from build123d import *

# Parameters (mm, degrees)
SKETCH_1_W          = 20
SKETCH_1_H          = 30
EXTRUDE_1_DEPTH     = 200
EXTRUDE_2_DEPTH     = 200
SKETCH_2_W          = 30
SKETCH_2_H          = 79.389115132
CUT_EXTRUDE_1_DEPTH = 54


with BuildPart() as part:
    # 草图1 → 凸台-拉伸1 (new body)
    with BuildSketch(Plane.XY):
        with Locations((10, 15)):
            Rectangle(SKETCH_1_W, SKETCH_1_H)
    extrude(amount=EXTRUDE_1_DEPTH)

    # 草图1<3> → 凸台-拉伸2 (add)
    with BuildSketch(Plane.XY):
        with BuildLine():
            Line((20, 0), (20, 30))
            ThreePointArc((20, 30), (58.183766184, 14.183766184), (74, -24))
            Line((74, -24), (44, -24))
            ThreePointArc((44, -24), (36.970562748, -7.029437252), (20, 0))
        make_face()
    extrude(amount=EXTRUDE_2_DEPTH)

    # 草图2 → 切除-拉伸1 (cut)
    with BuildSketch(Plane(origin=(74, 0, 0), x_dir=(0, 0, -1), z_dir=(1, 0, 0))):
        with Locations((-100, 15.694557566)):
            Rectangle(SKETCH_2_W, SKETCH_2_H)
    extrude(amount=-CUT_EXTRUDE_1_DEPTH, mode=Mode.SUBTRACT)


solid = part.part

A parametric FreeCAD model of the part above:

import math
import FreeCAD as App
import Part
import Sketcher
from FreeCAD import Vector
Q = App.Units.Quantity

doc = App.newDocument("Part")
body = doc.addObject("PartDesign::Body", "Body")

sketch1 = doc.addObject("Sketcher::SketchObject", "Sketch")
body.addObject(sketch1)
sketch1.AttachmentSupport = (doc.XY_Plane, [""])
sketch1.MapMode = "FlatFace"
sketch1.addGeometry([
    Part.LineSegment(Vector(0, 30, 0), Vector(0, 0, 0)),
    Part.LineSegment(Vector(0, 0, 0), Vector(20, 0, 0)),
    Part.LineSegment(Vector(20, 0, 0), Vector(20, 30, 0)),
    Part.LineSegment(Vector(20, 30, 0), Vector(0, 30, 0)),
], False)
sketch1.addConstraint([
    Sketcher.Constraint("Coincident", 0, 2, 1, 1),
    Sketcher.Constraint("Coincident", 1, 2, 2, 1),
    Sketcher.Constraint("Coincident", 2, 2, 3, 1),
    Sketcher.Constraint("Coincident", 3, 2, 0, 1),
    Sketcher.Constraint("Vertical", 0),
    Sketcher.Constraint("Horizontal", 1),
    Sketcher.Constraint("Vertical", 2),
    Sketcher.Constraint("Horizontal", 3),
    Sketcher.Constraint("Coincident", 0, 2, -1, 1),
    Sketcher.Constraint("DistanceX", 1, 1, 1, 2, Q("20 mm")),
    Sketcher.Constraint("DistanceY", 0, 2, 0, 1, Q("30 mm")),
])
pad1 = doc.addObject("PartDesign::Pad", "Pad")
body.addObject(pad1)
pad1.Profile = sketch1
pad1.Length = 200

sketch2 = doc.addObject("Sketcher::SketchObject", "Sketch001")
body.addObject(sketch2)
sketch2.AttachmentSupport = (doc.XY_Plane, [""])
sketch2.MapMode = "FlatFace"
sketch2.addGeometry([
    Part.LineSegment(Vector(20, 30, 0), Vector(20, 0, 0)),
    Part.ArcOfCircle(Part.Circle(Vector(20, -24, 0), Vector(0, 0, 1), 24), math.radians(0), math.radians(90)),
    Part.LineSegment(Vector(44, -24, 0), Vector(74, -24, 0)),
    Part.ArcOfCircle(Part.Circle(Vector(20, -24, 0), Vector(0, 0, 1), 54), math.radians(0), math.radians(90)),
], False)
sketch2.addConstraint([
    Sketcher.Constraint("Coincident", 0, 2, 1, 2),
    Sketcher.Constraint("Coincident", 1, 1, 2, 1),
    Sketcher.Constraint("Coincident", 2, 2, 3, 1),
    Sketcher.Constraint("Coincident", 3, 2, 0, 1),
    Sketcher.Constraint("Vertical", 0),
    Sketcher.Constraint("Horizontal", 2),
    Sketcher.Constraint("Coincident", 3, 3, 1, 3),
    Sketcher.Constraint("PointOnObject", 0, 2, -1),
    Sketcher.Constraint("Horizontal", 3, 3, 1, 1),
    Sketcher.Constraint("Vertical", 3, 3, 0, 2),
    Sketcher.Constraint("Radius", 1, Q("24 mm")),
    Sketcher.Constraint("Radius", 3, Q("54 mm")),
    Sketcher.Constraint("DistanceX", -1, 1, 1, 3, Q("20 mm")),
])
pad2 = doc.addObject("PartDesign::Pad", "Pad001")
body.addObject(pad2)
pad2.Profile = sketch2
pad2.Length = 200

sketch3 = doc.addObject("Sketcher::SketchObject", "Sketch002")
body.addObject(sketch3)
sketch3.AttachmentSupport = (doc.YZ_Plane, [""])
sketch3.MapMode = "FlatFace"
sketch3.AttachmentOffset = App.Placement(Vector(0, 0, 74), App.Rotation())
sketch3.addGeometry([
    Part.LineSegment(Vector(55, 115, 0), Vector(-24, 115, 0)),
    Part.LineSegment(Vector(-24, 115, 0), Vector(-24, 85, 0)),
    Part.LineSegment(Vector(-24, 85, 0), Vector(55, 85, 0)),
    Part.LineSegment(Vector(55, 85, 0), Vector(55, 115, 0)),
], False)
sketch3.addConstraint([
    Sketcher.Constraint("Coincident", 0, 2, 1, 1),
    Sketcher.Constraint("Coincident", 1, 2, 2, 1),
    Sketcher.Constraint("Coincident", 2, 2, 3, 1),
    Sketcher.Constraint("Coincident", 3, 2, 0, 1),
    Sketcher.Constraint("Horizontal", 0),
    Sketcher.Constraint("Vertical", 1),
    Sketcher.Constraint("Horizontal", 2),
    Sketcher.Constraint("Vertical", 3),
    Sketcher.Constraint("DistanceY", 1, 2, 1, 1, Q("30 mm")),
    Sketcher.Constraint("DistanceX", 0, 2, -1, 1, Q("24 mm")),
    Sketcher.Constraint("DistanceY", -1, 1, 0, 2, Q("115 mm")),
    Sketcher.Constraint("DistanceX", 0, 2, 0, 1, Q("79.389115 mm")),
])
pocket1 = doc.addObject("PartDesign::Pocket", "Pocket")
body.addObject(pocket1)
pocket1.Profile = sketch3
pocket1.Length = 54

doc.recompute()
